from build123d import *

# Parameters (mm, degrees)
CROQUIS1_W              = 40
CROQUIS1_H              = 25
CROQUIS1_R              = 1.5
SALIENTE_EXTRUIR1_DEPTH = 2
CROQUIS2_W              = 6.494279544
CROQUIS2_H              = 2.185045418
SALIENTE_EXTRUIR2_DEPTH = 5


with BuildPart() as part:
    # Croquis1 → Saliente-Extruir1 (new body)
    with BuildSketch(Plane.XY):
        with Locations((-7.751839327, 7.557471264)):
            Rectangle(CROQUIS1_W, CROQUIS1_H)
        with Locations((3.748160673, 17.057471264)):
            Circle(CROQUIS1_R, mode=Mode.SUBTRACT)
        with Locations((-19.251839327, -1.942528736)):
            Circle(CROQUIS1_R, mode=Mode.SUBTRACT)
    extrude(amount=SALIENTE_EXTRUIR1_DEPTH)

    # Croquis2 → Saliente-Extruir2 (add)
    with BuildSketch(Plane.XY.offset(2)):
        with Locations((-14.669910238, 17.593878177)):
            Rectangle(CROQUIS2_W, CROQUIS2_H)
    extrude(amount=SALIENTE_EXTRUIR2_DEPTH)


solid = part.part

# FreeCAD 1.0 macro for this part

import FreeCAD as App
import Part
import Sketcher
Q = App.Units.Quantity

doc = App.newDocument("Part")
body = doc.addObject("PartDesign::Body", "Body")

# Sketch on XY plane
sketch1 = body.newObject("Sketcher::SketchObject", "Sketch")
sketch1.AttachmentSupport = (doc.getObject("XY_Plane"), [""])
sketch1.MapMode = "FlatFace"
sketch1.addGeometry(Part.LineSegment(App.Vector(-27.8, 20.1, 0), App.Vector(-27.8, -4.9, 0)), False)
sketch1.addGeometry(Part.LineSegment(App.Vector(-27.8, -4.9, 0), App.Vector(12.2, -4.9, 0)), False)
sketch1.addGeometry(Part.LineSegment(App.Vector(12.2, -4.9, 0), App.Vector(12.2, 20.1, 0)), False)
sketch1.addGeometry(Part.LineSegment(App.Vector(12.2, 20.1, 0), App.Vector(-27.8, 20.1, 0)), False)
sketch1.addGeometry(Part.Circle(App.Vector(-19.3, -1.9, 0), App.Vector(0, 0, 1), 1.5), False)
sketch1.addGeometry(Part.Circle(App.Vector(3.7, 17.1, 0), App.Vector(0, 0, 1), 1.5), False)
sketch1.addConstraint(Sketcher.Constraint("Coincident", 0, 2, 1, 1))
sketch1.addConstraint(Sketcher.Constraint("Coincident", 1, 2, 2, 1))
sketch1.addConstraint(Sketcher.Constraint("Coincident", 2, 2, 3, 1))
sketch1.addConstraint(Sketcher.Constraint("Coincident", 3, 2, 0, 1))
sketch1.addConstraint(Sketcher.Constraint("Vertical", 0))
sketch1.addConstraint(Sketcher.Constraint("Horizontal", 1))
sketch1.addConstraint(Sketcher.Constraint("Vertical", 2))
sketch1.addConstraint(Sketcher.Constraint("Horizontal", 3))
sketch1.addConstraint(Sketcher.Constraint("Equal", 4, 5))
sketch1.addConstraint(Sketcher.Constraint("Diameter", 4, Q("3 mm")))
sketch1.addConstraint(Sketcher.Constraint("DistanceX", 1, 1, 1, 2, Q("40 mm")))
sketch1.addConstraint(Sketcher.Constraint("DistanceY", 0, 2, 0, 1, Q("25 mm")))
sketch1.addConstraint(Sketcher.Constraint("DistanceX", 4, 3, 5, 3, Q("23 mm")))
sketch1.addConstraint(Sketcher.Constraint("DistanceY", 4, 3, 5, 3, Q("19 mm")))
sketch1.addConstraint(Sketcher.Constraint("DistanceY", 0, 2, 4, 3, Q("3 mm")))
sketch1.addConstraint(Sketcher.Constraint("DistanceX", 0, 2, 4, 3, Q("8.5 mm")))
sketch1.addConstraint(Sketcher.Constraint("DistanceX", 4, 3, -1, 1, Q("19.251839 mm")))
sketch1.addConstraint(Sketcher.Constraint("DistanceY", 4, 3, -1, 1, Q("1.942529 mm")))
pad1 = body.newObject("PartDesign::Pad", "Pad")
pad1.Profile = sketch1
pad1.Length = 2

# Sketch on XY plane
sketch2 = body.newObject("Sketcher::SketchObject", "Sketch001")
sketch2.AttachmentSupport = (doc.getObject("XY_Plane"), [""])
sketch2.MapMode = "FlatFace"
sketch2.AttachmentOffset = App.Placement(App.Vector(0, 0, 2), App.Rotation())
sketch2.addGeometry(Part.LineSegment(App.Vector(-17.9, 18.7, 0), App.Vector(-17.9, 16.5, 0)), False)
sketch2.addGeometry(Part.LineSegment(App.Vector(-17.9, 16.5, 0), App.Vector(-11.4, 16.5, 0)), False)
sketch2.addGeometry(Part.LineSegment(App.Vector(-11.4, 16.5, 0), App.Vector(-11.4, 18.7, 0)), False)
sketch2.addGeometry(Part.LineSegment(App.Vector(-11.4, 18.7, 0), App.Vector(-17.9, 18.7, 0)), False)
sketch2.addConstraint(Sketcher.Constraint("Coincident", 0, 2, 1, 1))
sketch2.addConstraint(Sketcher.Constraint("Coincident", 1, 2, 2, 1))
sketch2.addConstraint(Sketcher.Constraint("Coincident", 2, 2, 3, 1))
sketch2.addConstraint(Sketcher.Constraint("Coincident", 3, 2, 0, 1))
sketch2.addConstraint(Sketcher.Constraint("Vertical", 0))
sketch2.addConstraint(Sketcher.Constraint("Horizontal", 1))
sketch2.addConstraint(Sketcher.Constraint("Vertical", 2))
sketch2.addConstraint(Sketcher.Constraint("Horizontal", 3))
sketch2.addConstraint(Sketcher.Constraint("DistanceX", 1, 1, 1, 2, Q("6.49428 mm")))
sketch2.addConstraint(Sketcher.Constraint("DistanceY", -1, 1, 2, 2, Q("18.686401 mm")))
sketch2.addConstraint(Sketcher.Constraint("DistanceY", 0, 2, 0, 1, Q("2.185045 mm")))
sketch2.addConstraint(Sketcher.Constraint("DistanceX", 0, 2, -1, 1, Q("17.91705 mm")))
pad2 = body.newObject("PartDesign::Pad", "Pad001")
pad2.Profile = sketch2
pad2.Length = 5

doc.recompute()
